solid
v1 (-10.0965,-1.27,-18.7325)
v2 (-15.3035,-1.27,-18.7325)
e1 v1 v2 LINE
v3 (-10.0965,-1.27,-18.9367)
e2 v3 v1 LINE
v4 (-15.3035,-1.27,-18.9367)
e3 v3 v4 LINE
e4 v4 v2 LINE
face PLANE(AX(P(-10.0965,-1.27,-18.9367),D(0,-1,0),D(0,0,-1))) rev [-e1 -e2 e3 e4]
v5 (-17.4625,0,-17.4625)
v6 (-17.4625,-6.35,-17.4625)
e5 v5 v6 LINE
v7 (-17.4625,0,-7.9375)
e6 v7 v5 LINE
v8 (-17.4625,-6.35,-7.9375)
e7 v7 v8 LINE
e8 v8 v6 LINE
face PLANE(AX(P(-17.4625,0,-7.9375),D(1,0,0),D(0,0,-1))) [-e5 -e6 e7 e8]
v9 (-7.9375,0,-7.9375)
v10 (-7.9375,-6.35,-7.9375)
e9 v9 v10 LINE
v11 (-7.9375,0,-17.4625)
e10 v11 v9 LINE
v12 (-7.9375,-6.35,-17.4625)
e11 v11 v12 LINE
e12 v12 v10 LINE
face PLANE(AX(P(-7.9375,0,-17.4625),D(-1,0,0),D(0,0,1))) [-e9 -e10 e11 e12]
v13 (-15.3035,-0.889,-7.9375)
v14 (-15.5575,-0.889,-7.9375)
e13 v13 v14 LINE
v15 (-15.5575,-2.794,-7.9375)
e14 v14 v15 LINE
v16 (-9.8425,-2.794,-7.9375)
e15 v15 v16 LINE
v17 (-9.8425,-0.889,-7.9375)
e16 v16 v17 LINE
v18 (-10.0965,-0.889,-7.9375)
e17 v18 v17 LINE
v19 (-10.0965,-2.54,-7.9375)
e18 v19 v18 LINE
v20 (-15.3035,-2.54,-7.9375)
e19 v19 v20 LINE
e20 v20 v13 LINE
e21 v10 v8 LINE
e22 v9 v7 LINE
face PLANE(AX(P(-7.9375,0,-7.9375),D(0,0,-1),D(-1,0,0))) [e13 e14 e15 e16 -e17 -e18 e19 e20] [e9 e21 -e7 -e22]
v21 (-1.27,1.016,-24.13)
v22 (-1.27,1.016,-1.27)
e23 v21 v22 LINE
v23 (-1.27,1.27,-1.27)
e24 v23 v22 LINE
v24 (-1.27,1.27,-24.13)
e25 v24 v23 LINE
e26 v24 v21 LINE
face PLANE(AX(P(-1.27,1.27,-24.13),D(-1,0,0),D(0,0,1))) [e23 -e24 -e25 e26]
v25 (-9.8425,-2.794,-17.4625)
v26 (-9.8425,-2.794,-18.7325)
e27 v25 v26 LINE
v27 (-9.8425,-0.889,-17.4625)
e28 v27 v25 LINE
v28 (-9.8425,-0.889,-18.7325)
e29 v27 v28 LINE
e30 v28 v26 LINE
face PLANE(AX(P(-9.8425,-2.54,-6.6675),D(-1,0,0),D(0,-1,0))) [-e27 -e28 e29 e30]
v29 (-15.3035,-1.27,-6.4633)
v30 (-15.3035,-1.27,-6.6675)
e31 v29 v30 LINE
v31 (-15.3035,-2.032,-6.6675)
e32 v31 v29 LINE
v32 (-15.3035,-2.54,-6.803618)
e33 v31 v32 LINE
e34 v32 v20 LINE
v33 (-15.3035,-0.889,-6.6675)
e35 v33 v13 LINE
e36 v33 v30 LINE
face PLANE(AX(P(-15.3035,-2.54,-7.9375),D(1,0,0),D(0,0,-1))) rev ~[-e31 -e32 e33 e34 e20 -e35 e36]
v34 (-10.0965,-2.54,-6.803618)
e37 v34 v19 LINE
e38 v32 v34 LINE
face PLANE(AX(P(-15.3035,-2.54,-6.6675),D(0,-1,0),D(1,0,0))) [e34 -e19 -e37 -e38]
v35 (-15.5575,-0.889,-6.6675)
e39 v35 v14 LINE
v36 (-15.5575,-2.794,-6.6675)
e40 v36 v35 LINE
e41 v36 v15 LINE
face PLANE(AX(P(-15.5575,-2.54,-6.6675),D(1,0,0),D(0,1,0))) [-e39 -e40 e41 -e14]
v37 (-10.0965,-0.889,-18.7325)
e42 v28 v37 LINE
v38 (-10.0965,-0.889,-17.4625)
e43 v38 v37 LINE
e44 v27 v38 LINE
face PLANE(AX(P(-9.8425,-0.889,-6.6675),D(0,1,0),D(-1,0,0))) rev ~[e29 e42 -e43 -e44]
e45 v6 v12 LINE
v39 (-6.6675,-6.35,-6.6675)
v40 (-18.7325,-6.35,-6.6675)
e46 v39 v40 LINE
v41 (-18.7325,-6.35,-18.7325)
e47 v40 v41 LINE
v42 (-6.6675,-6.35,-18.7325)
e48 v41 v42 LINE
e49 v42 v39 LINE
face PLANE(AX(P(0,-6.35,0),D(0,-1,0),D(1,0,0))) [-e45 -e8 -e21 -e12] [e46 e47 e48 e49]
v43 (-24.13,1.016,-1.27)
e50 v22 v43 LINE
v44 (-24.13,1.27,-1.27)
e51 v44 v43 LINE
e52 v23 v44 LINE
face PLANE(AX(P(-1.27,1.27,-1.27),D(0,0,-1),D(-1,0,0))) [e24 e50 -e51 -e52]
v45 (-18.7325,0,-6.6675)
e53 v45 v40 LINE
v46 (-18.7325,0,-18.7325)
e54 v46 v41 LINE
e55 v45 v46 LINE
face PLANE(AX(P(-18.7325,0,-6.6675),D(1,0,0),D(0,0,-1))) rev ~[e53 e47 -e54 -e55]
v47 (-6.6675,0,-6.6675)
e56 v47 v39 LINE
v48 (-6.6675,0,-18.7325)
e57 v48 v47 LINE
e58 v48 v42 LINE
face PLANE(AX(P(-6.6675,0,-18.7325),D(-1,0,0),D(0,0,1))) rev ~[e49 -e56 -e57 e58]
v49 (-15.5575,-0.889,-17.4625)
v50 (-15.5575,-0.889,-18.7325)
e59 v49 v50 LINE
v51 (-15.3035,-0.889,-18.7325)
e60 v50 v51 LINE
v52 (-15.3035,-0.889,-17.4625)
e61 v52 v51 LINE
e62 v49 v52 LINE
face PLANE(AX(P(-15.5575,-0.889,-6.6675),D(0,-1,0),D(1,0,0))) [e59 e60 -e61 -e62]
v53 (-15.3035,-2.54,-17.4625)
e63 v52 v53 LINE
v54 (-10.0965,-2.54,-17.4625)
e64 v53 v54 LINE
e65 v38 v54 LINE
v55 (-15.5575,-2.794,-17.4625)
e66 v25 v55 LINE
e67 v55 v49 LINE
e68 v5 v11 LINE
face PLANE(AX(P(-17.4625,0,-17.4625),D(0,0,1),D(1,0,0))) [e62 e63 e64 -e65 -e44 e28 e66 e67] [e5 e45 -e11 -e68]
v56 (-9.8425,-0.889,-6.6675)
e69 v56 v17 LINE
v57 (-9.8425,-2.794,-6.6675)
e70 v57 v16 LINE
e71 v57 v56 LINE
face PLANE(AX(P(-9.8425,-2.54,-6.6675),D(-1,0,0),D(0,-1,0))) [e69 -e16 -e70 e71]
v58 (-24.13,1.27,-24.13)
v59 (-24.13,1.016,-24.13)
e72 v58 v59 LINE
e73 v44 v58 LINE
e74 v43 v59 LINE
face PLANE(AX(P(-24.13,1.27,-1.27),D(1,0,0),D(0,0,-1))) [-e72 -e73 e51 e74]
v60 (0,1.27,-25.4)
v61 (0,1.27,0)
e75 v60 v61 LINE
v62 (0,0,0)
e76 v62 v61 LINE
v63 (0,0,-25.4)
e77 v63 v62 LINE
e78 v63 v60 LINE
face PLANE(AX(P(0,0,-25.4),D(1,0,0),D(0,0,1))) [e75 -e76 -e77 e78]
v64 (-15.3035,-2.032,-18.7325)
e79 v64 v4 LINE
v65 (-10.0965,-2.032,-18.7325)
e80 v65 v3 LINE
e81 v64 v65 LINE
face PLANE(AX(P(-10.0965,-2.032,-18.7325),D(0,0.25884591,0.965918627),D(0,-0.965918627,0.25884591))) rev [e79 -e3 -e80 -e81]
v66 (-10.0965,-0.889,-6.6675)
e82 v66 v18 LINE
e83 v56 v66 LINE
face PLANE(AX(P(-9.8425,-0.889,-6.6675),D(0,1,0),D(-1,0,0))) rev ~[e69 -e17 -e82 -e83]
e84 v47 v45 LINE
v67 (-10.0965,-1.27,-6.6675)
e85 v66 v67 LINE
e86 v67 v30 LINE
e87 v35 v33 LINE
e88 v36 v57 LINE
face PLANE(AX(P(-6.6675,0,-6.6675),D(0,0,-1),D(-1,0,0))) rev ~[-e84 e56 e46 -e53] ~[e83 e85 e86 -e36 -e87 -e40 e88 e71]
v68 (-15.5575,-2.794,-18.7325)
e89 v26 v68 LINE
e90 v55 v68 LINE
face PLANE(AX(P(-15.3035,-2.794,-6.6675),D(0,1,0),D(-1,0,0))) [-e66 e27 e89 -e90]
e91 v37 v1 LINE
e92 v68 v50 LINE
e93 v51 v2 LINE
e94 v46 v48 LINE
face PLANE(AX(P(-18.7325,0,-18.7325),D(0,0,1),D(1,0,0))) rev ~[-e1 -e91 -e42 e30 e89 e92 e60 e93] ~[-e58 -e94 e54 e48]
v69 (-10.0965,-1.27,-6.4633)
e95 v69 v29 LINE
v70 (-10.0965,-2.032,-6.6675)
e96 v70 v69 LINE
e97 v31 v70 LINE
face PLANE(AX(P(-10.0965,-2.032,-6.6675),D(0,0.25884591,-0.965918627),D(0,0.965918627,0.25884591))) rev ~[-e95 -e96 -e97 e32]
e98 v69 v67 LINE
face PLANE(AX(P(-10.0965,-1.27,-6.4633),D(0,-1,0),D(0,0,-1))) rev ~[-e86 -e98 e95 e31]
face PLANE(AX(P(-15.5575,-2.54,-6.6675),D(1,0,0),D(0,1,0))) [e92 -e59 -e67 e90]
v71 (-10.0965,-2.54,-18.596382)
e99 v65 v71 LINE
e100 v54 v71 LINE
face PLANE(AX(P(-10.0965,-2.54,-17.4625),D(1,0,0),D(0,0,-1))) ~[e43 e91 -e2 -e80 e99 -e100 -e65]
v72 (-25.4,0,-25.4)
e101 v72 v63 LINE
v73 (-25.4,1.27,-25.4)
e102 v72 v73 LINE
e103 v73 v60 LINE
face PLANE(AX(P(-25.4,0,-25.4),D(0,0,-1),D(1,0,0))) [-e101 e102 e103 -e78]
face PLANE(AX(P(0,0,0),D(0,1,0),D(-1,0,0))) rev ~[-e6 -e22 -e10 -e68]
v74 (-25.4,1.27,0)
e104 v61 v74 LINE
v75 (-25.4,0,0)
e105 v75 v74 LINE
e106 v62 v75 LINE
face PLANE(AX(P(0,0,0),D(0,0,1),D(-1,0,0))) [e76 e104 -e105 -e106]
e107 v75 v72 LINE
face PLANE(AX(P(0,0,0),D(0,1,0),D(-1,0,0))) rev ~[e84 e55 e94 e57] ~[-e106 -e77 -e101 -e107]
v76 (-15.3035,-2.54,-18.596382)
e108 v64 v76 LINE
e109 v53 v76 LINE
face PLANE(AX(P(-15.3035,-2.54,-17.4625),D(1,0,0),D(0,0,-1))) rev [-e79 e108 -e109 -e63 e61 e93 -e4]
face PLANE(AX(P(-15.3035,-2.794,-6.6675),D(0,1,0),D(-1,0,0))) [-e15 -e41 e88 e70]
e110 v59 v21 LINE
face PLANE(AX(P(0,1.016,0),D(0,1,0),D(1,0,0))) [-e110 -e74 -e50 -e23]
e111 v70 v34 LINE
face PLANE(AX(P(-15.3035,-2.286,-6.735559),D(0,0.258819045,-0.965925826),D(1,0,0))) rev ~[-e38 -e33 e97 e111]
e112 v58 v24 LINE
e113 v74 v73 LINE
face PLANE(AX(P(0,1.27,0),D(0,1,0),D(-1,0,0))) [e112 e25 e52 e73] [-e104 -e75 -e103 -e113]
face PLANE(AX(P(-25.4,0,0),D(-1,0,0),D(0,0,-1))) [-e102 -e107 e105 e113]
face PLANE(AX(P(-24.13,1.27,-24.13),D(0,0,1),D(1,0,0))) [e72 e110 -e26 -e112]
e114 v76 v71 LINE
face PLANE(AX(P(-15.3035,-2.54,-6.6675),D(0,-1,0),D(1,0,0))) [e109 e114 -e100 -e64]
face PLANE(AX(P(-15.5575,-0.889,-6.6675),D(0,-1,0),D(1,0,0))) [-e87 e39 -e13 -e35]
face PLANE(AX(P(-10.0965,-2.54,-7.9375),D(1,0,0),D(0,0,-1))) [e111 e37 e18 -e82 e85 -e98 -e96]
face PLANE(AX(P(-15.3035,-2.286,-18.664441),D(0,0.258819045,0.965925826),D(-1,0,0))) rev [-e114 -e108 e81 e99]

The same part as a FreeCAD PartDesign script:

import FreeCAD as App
import Part
import Sketcher
from FreeCAD import Vector
Q = App.Units.Quantity


def edges_at(feature, points):
    """Names of the edges that pass closest to the given points."""
    edges = feature.Shape.Edges
    near = lambda p: min(range(len(edges)), key=lambda i: edges[i].distToShape(Part.Vertex(*p))[0])
    return sorted({f"Edge{near(p) + 1}" for p in points})

doc = App.newDocument("Part")
body = doc.addObject("PartDesign::Body", "Body")

# Sketch on XZ plane
sketch1 = doc.addObject("Sketcher::SketchObject", "Sketch")
body.addObject(sketch1)
sketch1.AttachmentSupport = (doc.XZ_Plane, [""])
sketch1.MapMode = "FlatFace"
sketch1.addGeometry(Part.LineSegment(Vector(-25.4, 0, 0), Vector(0, 0, 0)), False)
sketch1.addGeometry(Part.LineSegment(Vector(0, 0, 0), Vector(0, -25.4, 0)), False)
sketch1.addGeometry(Part.LineSegment(Vector(0, -25.4, 0), Vector(-25.4, -25.4, 0)), False)
sketch1.addGeometry(Part.LineSegment(Vector(-25.4, -25.4, 0), Vector(-25.4, 0, 0)), False)
sketch1.addConstraint(Sketcher.Constraint("Coincident", 0, 2, 1, 1))
sketch1.addConstraint(Sketcher.Constraint("Coincident", 1, 2, 2, 1))
sketch1.addConstraint(Sketcher.Constraint("Coincident", 2, 2, 3, 1))
sketch1.addConstraint(Sketcher.Constraint("Coincident", 3, 2, 0, 1))
sketch1.addConstraint(Sketcher.Constraint("Horizontal", 0))
sketch1.addConstraint(Sketcher.Constraint("Vertical", 1))
sketch1.addConstraint(Sketcher.Constraint("Horizontal", 2))
sketch1.addConstraint(Sketcher.Constraint("Vertical", 3))
sketch1.addConstraint(Sketcher.Constraint("Coincident", 0, 2, -1, 1))
sketch1.addConstraint(Sketcher.Constraint("Equal", 2, 1))
sketch1.addConstraint(Sketcher.Constraint("DistanceX", 0, 1, 0, 2, Q("1 in")))
pad1 = doc.addObject("PartDesign::Pad", "Pad")
body.addObject(pad1)
pad1.Profile = sketch1
pad1.Length = Q("0.05 in")
pad1.Reversed = True

# Sketch on XZ plane
sketch2 = doc.addObject("Sketcher::SketchObject", "Sketch001")
body.addObject(sketch2)
sketch2.AttachmentSupport = (doc.XZ_Plane, [""])
sketch2.MapMode = "FlatFace"
sketch2.addGeometry(Part.LineSegment(Vector(-6.6675, -18.7325, 0), Vector(-6.6675, -6.6675, 0)), False)
sketch2.addGeometry(Part.LineSegment(Vector(-6.6675, -6.6675, 0), Vector(-18.7325, -6.6675, 0)), False)
sketch2.addGeometry(Part.LineSegment(Vector(-18.7325, -6.6675, 0), Vector(-18.7325, -18.7325, 0)), False)
sketch2.addGeometry(Part.LineSegment(Vector(-18.7325, -18.7325, 0), Vector(-6.6675, -18.7325, 0)), False)
sketch2.addGeometry(Part.LineSegment(Vector(-17.4625, -7.9375, 0), Vector(-7.9375, -7.9375, 0)), False)
sketch2.addGeometry(Part.LineSegment(Vector(-7.9375, -7.9375, 0), Vector(-7.9375, -17.4625, 0)), False)
sketch2.addGeometry(Part.LineSegment(Vector(-7.9375, -17.4625, 0), Vector(-17.4625, -17.4625, 0)), False)
sketch2.addGeometry(Part.LineSegment(Vector(-17.4625, -17.4625, 0), Vector(-17.4625, -7.9375, 0)), False)
sketch2.addConstraint(Sketcher.Constraint("Coincident", 0, 2, 1, 1))
sketch2.addConstraint(Sketcher.Constraint("Coincident", 1, 2, 2, 1))
sketch2.addConstraint(Sketcher.Constraint("Coincident", 2, 2, 3, 1))
sketch2.addConstraint(Sketcher.Constraint("Coincident", 3, 2, 0, 1))
sketch2.addConstraint(Sketcher.Constraint("Coincident", 4, 2, 5, 1))
sketch2.addConstraint(Sketcher.Constraint("Coincident", 5, 2, 6, 1))
sketch2.addConstraint(Sketcher.Constraint("Coincident", 6, 2, 7, 1))
sketch2.addConstraint(Sketcher.Constraint("Coincident", 7, 2, 4, 1))
sketch2.addConstraint(Sketcher.Constraint("Vertical", 0))
sketch2.addConstraint(Sketcher.Constraint("Horizontal", 1))
sketch2.addConstraint(Sketcher.Constraint("Vertical", 2))
sketch2.addConstraint(Sketcher.Constraint("Horizontal", 3))
sketch2.addConstraint(Sketcher.Constraint("Horizontal", 4))
sketch2.addConstraint(Sketcher.Constraint("Vertical", 5))
sketch2.addConstraint(Sketcher.Constraint("Horizontal", 6))
sketch2.addConstraint(Sketcher.Constraint("Vertical", 7))
sketch2.addConstraint(Sketcher.Constraint("Equal", 3, 0))
sketch2.addConstraint(Sketcher.Constraint("Equal", 6, 5))
sketch2.addConstraint(Sketcher.Constraint("DistanceX", 1, 2, 1, 1, Q("0.475 in")))
sketch2.addConstraint(Sketcher.Constraint("DistanceX", 4, 2, 0, 2, Q("0.05 in")))
sketch2.addConstraint(Sketcher.Constraint("DistanceY", 4, 2, 0, 2, Q("0.05 in")))
sketch2.addConstraint(Sketcher.Constraint("DistanceY", 3, 2, 5, 2, Q("0.05 in")))
sketch2.addConstraint(Sketcher.Constraint("DistanceX", 4, 2, -1, 1, Q("0.3125 in")))
sketch2.addConstraint(Sketcher.Constraint("DistanceY", 4, 2, -1, 1, Q("0.3125 in")))
pad2 = doc.addObject("PartDesign::Pad", "Pad001")
body.addObject(pad2)
pad2.Profile = sketch2
pad2.Length = Q("0.25 in")

# Sketch on XY plane
sketch3 = doc.addObject("Sketcher::SketchObject", "Sketch002")
body.addObject(sketch3)
sketch3.AttachmentSupport = (doc.XY_Plane, [""])
sketch3.MapMode = "FlatFace"
sketch3.AttachmentOffset = App.Placement(Vector(0, 0, -0.2625 * 25.4), App.Rotation())
sketch3.addGeometry(Part.LineSegment(Vector(-15.5575, -0.889, 0), Vector(-15.5575, -2.794, 0)), False)
sketch3.addGeometry(Part.LineSegment(Vector(-15.5575, -2.794, 0), Vector(-9.8425, -2.794, 0)), False)
sketch3.addGeometry(Part.LineSegment(Vector(-9.8425, -2.794, 0), Vector(-9.8425, -0.889, 0)), False)
sketch3.addGeometry(Part.LineSegment(Vector(-9.8425, -0.889, 0), Vector(-10.0965, -0.889, 0)), False)
sketch3.addGeometry(Part.LineSegment(Vector(-10.0965, -0.889, 0), Vector(-10.0965, -2.54, 0)), False)
sketch3.addGeometry(Part.LineSegment(Vector(-10.0965, -2.54, 0), Vector(-15.3035, -2.54, 0)), False)
sketch3.addGeometry(Part.LineSegment(Vector(-15.3035, -2.54, 0), Vector(-15.3035, -0.889, 0)), False)
sketch3.addGeometry(Part.LineSegment(Vector(-15.3035, -0.889, 0), Vector(-15.5575, -0.889, 0)), False)
sketch3.addConstraint(Sketcher.Constraint("Coincident", 0, 2, 1, 1))
sketch3.addConstraint(Sketcher.Constraint("Coincident", 1, 2, 2, 1))
sketch3.addConstraint(Sketcher.Constraint("Coincident", 2, 2, 3, 1))
sketch3.addConstraint(Sketcher.Constraint("Coincident", 3, 2, 4, 1))
sketch3.addConstraint(Sketcher.Constraint("Coincident", 4, 2, 5, 1))
sketch3.addConstraint(Sketcher.Constraint("Coincident", 5, 2, 6, 1))
sketch3.addConstraint(Sketcher.Constraint("Coincident", 6, 2, 7, 1))
sketch3.addConstraint(Sketcher.Constraint("Coincident", 7, 2, 0, 1))
sketch3.addConstraint(Sketcher.Constraint("Vertical", 0))
sketch3.addConstraint(Sketcher.Constraint("Horizontal", 1))
sketch3.addConstraint(Sketcher.Constraint("Vertical", 2))
sketch3.addConstraint(Sketcher.Constraint("Horizontal", 3))
sketch3.addConstraint(Sketcher.Constraint("Vertical", 4))
sketch3.addConstraint(Sketcher.Constraint("Horizontal", 5))
sketch3.addConstraint(Sketcher.Constraint("Vertical", 6))
sketch3.addConstraint(Sketcher.Constraint("Horizontal", 7))
sketch3.addConstraint(Sketcher.Constraint("Horizontal", 3, 2, 6, 2))
sketch3.addConstraint(Sketcher.Constraint("Equal", 3, 7))
sketch3.addConstraint(Sketcher.Constraint("DistanceX", 3, 2, 3, 1, Q("0.01 in")))
sketch3.addConstraint(Sketcher.Constraint("DistanceY", 4, 2, -1, 1, Q("0.1 in")))
sketch3.addConstraint(Sketcher.Constraint("DistanceX", 1, 1, 1, 2, Q("0.225 in")))
sketch3.addConstraint(Sketcher.Constraint("DistanceY", 0, 2, 0, 1, Q("0.075 in")))
sketch3.addConstraint(Sketcher.Constraint("DistanceY", 1, 2, 4, 2, Q("0.01 in")))
sketch3.addConstraint(Sketcher.Constraint("DistanceX", 0, 2, -1, 1, Q("0.6125 in")))
pocket1 = doc.addObject("PartDesign::Pocket", "Pocket")
body.addObject(pocket1)
pocket1.Profile = sketch3
pocket1.Type = "ThroughAll"
doc.recompute()

chamfer = doc.addObject("PartDesign::Chamfer", "Chamfer")
body.addObject(chamfer)
chamfer.Base = (pocket1, edges_at(pocket1, [(-12.7, -2.54, -6.668)]))
chamfer.ChamferType = "Distance and Angle"
chamfer.Size = Q("0.02 in")
chamfer.Angle = 15

# Sketch on YZ plane
sketch4 = doc.addObject("Sketcher::SketchObject", "Sketch003")
body.addObject(sketch4)
sketch4.AttachmentSupport = (doc.YZ_Plane, [""])
sketch4.MapMode = "FlatFace"
sketch4.AttachmentOffset = App.Placement(Vector(0, 0, -0.3975 * 25.4), App.Rotation())
sketch4.addGeometry(Part.LineSegment(Vector(-1.27, -6.4633, 0), Vector(-2.032, -6.6675, 0)), False)
sketch4.addGeometry(Part.LineSegment(Vector(-2.032, -6.6675, 0), Vector(-1.27, -6.6675, 0)), False)
sketch4.addGeometry(Part.LineSegment(Vector(-1.27, -6.6675, 0), Vector(-1.27, -6.4633, 0)), False)
sketch4.addConstraint(Sketcher.Constraint("Coincident", 0, 2, 1, 1))
sketch4.addConstraint(Sketcher.Constraint("Coincident", 1, 2, 2, 1))
sketch4.addConstraint(Sketcher.Constraint("Coincident", 2, 2, 0, 1))
sketch4.addConstraint(Sketcher.Constraint("Horizontal", 1))
sketch4.addConstraint(Sketcher.Constraint("Vertical", 2))
sketch4.addConstraint(Sketcher.Constraint("DistanceX", 1, 1, 1, 2, Q("0.03 in")))
sketch4.addConstraint(Sketcher.Constraint("DistanceX", 0, 2, -1, 1, Q("0.08 in")))
sketch4.addConstraint(Sketcher.Constraint("DistanceY", 2, 1, 2, 2, Q("0.2042 mm")))
sketch4.addConstraint(Sketcher.Constraint("DistanceY", 0, 2, -1, 1, Q("0.2625 in")))
pad3 = doc.addObject("PartDesign::Pad", "Pad002")
body.addObject(pad3)
pad3.Profile = sketch4
pad3.Length = Q("0.205 in")
pad3.Reversed = True
doc.recompute()

chamfer2 = doc.addObject("PartDesign::Chamfer", "Chamfer001")
body.addObject(chamfer2)
chamfer2.Base = (pad3, edges_at(pad3, [(-12.7, -2.54, -18.733)]))
chamfer2.ChamferType = "Distance and Angle"
chamfer2.Size = Q("0.02 in")
chamfer2.Angle = 15
doc.recompute()

datumplane = doc.addObject("PartDesign::Plane", "DatumPlane")
body.addObject(datumplane)
datumplane.AttachmentSupport = (doc.XY_Plane, [""])
datumplane.MapMode = "FlatFace"
datumplane.AttachmentOffset = App.Placement(Vector(0, 0, -0.5 * 25.4), App.Rotation())
mirrored = doc.addObject("PartDesign::Mirrored", "Mirrored")
body.addObject(mirrored)
mirrored.Originals = [pad3]
mirrored.MirrorPlane = (datumplane, [""])
body.Tip = mirrored

# Sketch on XZ plane
sketch5 = doc.addObject("Sketcher::SketchObject", "Sketch004")
body.addObject(sketch5)
sketch5.AttachmentSupport = (doc.XZ_Plane, [""])
sketch5.MapMode = "FlatFace"
sketch5.AttachmentOffset = App.Placement(Vector(0, 0, -0.05 * 25.4), App.Rotation())
sketch5.addGeometry(Part.LineSegment(Vector(-24.13, -24.13, 0), Vector(-24.13, -1.27, 0)), False)
sketch5.addGeometry(Part.LineSegment(Vector(-24.13, -1.27, 0), Vector(-1.27, -1.27, 0)), False)
sketch5.addGeometry(Part.LineSegment(Vector(-1.27, -1.27, 0), Vector(-1.27, -24.13, 0)), False)
sketch5.addGeometry(Part.LineSegment(Vector(-1.27, -24.13, 0), Vector(-24.13, -24.13, 0)), False)
sketch5.addConstraint(Sketcher.Constraint("Coincident", 0, 2, 1, 1))
sketch5.addConstraint(Sketcher.Constraint("Coincident", 1, 2, 2, 1))
sketch5.addConstraint(Sketcher.Constraint("Coincident", 2, 2, 3, 1))
sketch5.addConstraint(Sketcher.Constraint("Coincident", 3, 2, 0, 1))
sketch5.addConstraint(Sketcher.Constraint("Vertical", 0))
sketch5.addConstraint(Sketcher.Constraint("Horizontal", 1))
sketch5.addConstraint(Sketcher.Constraint("Vertical", 2))
sketch5.addConstraint(Sketcher.Constraint("Horizontal", 3))
sketch5.addConstraint(Sketcher.Constraint("Equal", 3, 0))
sketch5.addConstraint(Sketcher.Constraint("DistanceY", 0, 2, -1, 1, Q("0.05 in")))
sketch5.addConstraint(Sketcher.Constraint("DistanceX", 1, 2, -1, 1, Q("0.05 in")))
sketch5.addConstraint(Sketcher.Constraint("DistanceX", 1, 1, 1, 2, Q("0.9 in")))
pocket2 = doc.addObject("PartDesign::Pocket", "Pocket001")
body.addObject(pocket2)
pocket2.Profile = sketch5
pocket2.Length = Q("0.01 in")
pocket2.Reversed = True

doc.recompute()
